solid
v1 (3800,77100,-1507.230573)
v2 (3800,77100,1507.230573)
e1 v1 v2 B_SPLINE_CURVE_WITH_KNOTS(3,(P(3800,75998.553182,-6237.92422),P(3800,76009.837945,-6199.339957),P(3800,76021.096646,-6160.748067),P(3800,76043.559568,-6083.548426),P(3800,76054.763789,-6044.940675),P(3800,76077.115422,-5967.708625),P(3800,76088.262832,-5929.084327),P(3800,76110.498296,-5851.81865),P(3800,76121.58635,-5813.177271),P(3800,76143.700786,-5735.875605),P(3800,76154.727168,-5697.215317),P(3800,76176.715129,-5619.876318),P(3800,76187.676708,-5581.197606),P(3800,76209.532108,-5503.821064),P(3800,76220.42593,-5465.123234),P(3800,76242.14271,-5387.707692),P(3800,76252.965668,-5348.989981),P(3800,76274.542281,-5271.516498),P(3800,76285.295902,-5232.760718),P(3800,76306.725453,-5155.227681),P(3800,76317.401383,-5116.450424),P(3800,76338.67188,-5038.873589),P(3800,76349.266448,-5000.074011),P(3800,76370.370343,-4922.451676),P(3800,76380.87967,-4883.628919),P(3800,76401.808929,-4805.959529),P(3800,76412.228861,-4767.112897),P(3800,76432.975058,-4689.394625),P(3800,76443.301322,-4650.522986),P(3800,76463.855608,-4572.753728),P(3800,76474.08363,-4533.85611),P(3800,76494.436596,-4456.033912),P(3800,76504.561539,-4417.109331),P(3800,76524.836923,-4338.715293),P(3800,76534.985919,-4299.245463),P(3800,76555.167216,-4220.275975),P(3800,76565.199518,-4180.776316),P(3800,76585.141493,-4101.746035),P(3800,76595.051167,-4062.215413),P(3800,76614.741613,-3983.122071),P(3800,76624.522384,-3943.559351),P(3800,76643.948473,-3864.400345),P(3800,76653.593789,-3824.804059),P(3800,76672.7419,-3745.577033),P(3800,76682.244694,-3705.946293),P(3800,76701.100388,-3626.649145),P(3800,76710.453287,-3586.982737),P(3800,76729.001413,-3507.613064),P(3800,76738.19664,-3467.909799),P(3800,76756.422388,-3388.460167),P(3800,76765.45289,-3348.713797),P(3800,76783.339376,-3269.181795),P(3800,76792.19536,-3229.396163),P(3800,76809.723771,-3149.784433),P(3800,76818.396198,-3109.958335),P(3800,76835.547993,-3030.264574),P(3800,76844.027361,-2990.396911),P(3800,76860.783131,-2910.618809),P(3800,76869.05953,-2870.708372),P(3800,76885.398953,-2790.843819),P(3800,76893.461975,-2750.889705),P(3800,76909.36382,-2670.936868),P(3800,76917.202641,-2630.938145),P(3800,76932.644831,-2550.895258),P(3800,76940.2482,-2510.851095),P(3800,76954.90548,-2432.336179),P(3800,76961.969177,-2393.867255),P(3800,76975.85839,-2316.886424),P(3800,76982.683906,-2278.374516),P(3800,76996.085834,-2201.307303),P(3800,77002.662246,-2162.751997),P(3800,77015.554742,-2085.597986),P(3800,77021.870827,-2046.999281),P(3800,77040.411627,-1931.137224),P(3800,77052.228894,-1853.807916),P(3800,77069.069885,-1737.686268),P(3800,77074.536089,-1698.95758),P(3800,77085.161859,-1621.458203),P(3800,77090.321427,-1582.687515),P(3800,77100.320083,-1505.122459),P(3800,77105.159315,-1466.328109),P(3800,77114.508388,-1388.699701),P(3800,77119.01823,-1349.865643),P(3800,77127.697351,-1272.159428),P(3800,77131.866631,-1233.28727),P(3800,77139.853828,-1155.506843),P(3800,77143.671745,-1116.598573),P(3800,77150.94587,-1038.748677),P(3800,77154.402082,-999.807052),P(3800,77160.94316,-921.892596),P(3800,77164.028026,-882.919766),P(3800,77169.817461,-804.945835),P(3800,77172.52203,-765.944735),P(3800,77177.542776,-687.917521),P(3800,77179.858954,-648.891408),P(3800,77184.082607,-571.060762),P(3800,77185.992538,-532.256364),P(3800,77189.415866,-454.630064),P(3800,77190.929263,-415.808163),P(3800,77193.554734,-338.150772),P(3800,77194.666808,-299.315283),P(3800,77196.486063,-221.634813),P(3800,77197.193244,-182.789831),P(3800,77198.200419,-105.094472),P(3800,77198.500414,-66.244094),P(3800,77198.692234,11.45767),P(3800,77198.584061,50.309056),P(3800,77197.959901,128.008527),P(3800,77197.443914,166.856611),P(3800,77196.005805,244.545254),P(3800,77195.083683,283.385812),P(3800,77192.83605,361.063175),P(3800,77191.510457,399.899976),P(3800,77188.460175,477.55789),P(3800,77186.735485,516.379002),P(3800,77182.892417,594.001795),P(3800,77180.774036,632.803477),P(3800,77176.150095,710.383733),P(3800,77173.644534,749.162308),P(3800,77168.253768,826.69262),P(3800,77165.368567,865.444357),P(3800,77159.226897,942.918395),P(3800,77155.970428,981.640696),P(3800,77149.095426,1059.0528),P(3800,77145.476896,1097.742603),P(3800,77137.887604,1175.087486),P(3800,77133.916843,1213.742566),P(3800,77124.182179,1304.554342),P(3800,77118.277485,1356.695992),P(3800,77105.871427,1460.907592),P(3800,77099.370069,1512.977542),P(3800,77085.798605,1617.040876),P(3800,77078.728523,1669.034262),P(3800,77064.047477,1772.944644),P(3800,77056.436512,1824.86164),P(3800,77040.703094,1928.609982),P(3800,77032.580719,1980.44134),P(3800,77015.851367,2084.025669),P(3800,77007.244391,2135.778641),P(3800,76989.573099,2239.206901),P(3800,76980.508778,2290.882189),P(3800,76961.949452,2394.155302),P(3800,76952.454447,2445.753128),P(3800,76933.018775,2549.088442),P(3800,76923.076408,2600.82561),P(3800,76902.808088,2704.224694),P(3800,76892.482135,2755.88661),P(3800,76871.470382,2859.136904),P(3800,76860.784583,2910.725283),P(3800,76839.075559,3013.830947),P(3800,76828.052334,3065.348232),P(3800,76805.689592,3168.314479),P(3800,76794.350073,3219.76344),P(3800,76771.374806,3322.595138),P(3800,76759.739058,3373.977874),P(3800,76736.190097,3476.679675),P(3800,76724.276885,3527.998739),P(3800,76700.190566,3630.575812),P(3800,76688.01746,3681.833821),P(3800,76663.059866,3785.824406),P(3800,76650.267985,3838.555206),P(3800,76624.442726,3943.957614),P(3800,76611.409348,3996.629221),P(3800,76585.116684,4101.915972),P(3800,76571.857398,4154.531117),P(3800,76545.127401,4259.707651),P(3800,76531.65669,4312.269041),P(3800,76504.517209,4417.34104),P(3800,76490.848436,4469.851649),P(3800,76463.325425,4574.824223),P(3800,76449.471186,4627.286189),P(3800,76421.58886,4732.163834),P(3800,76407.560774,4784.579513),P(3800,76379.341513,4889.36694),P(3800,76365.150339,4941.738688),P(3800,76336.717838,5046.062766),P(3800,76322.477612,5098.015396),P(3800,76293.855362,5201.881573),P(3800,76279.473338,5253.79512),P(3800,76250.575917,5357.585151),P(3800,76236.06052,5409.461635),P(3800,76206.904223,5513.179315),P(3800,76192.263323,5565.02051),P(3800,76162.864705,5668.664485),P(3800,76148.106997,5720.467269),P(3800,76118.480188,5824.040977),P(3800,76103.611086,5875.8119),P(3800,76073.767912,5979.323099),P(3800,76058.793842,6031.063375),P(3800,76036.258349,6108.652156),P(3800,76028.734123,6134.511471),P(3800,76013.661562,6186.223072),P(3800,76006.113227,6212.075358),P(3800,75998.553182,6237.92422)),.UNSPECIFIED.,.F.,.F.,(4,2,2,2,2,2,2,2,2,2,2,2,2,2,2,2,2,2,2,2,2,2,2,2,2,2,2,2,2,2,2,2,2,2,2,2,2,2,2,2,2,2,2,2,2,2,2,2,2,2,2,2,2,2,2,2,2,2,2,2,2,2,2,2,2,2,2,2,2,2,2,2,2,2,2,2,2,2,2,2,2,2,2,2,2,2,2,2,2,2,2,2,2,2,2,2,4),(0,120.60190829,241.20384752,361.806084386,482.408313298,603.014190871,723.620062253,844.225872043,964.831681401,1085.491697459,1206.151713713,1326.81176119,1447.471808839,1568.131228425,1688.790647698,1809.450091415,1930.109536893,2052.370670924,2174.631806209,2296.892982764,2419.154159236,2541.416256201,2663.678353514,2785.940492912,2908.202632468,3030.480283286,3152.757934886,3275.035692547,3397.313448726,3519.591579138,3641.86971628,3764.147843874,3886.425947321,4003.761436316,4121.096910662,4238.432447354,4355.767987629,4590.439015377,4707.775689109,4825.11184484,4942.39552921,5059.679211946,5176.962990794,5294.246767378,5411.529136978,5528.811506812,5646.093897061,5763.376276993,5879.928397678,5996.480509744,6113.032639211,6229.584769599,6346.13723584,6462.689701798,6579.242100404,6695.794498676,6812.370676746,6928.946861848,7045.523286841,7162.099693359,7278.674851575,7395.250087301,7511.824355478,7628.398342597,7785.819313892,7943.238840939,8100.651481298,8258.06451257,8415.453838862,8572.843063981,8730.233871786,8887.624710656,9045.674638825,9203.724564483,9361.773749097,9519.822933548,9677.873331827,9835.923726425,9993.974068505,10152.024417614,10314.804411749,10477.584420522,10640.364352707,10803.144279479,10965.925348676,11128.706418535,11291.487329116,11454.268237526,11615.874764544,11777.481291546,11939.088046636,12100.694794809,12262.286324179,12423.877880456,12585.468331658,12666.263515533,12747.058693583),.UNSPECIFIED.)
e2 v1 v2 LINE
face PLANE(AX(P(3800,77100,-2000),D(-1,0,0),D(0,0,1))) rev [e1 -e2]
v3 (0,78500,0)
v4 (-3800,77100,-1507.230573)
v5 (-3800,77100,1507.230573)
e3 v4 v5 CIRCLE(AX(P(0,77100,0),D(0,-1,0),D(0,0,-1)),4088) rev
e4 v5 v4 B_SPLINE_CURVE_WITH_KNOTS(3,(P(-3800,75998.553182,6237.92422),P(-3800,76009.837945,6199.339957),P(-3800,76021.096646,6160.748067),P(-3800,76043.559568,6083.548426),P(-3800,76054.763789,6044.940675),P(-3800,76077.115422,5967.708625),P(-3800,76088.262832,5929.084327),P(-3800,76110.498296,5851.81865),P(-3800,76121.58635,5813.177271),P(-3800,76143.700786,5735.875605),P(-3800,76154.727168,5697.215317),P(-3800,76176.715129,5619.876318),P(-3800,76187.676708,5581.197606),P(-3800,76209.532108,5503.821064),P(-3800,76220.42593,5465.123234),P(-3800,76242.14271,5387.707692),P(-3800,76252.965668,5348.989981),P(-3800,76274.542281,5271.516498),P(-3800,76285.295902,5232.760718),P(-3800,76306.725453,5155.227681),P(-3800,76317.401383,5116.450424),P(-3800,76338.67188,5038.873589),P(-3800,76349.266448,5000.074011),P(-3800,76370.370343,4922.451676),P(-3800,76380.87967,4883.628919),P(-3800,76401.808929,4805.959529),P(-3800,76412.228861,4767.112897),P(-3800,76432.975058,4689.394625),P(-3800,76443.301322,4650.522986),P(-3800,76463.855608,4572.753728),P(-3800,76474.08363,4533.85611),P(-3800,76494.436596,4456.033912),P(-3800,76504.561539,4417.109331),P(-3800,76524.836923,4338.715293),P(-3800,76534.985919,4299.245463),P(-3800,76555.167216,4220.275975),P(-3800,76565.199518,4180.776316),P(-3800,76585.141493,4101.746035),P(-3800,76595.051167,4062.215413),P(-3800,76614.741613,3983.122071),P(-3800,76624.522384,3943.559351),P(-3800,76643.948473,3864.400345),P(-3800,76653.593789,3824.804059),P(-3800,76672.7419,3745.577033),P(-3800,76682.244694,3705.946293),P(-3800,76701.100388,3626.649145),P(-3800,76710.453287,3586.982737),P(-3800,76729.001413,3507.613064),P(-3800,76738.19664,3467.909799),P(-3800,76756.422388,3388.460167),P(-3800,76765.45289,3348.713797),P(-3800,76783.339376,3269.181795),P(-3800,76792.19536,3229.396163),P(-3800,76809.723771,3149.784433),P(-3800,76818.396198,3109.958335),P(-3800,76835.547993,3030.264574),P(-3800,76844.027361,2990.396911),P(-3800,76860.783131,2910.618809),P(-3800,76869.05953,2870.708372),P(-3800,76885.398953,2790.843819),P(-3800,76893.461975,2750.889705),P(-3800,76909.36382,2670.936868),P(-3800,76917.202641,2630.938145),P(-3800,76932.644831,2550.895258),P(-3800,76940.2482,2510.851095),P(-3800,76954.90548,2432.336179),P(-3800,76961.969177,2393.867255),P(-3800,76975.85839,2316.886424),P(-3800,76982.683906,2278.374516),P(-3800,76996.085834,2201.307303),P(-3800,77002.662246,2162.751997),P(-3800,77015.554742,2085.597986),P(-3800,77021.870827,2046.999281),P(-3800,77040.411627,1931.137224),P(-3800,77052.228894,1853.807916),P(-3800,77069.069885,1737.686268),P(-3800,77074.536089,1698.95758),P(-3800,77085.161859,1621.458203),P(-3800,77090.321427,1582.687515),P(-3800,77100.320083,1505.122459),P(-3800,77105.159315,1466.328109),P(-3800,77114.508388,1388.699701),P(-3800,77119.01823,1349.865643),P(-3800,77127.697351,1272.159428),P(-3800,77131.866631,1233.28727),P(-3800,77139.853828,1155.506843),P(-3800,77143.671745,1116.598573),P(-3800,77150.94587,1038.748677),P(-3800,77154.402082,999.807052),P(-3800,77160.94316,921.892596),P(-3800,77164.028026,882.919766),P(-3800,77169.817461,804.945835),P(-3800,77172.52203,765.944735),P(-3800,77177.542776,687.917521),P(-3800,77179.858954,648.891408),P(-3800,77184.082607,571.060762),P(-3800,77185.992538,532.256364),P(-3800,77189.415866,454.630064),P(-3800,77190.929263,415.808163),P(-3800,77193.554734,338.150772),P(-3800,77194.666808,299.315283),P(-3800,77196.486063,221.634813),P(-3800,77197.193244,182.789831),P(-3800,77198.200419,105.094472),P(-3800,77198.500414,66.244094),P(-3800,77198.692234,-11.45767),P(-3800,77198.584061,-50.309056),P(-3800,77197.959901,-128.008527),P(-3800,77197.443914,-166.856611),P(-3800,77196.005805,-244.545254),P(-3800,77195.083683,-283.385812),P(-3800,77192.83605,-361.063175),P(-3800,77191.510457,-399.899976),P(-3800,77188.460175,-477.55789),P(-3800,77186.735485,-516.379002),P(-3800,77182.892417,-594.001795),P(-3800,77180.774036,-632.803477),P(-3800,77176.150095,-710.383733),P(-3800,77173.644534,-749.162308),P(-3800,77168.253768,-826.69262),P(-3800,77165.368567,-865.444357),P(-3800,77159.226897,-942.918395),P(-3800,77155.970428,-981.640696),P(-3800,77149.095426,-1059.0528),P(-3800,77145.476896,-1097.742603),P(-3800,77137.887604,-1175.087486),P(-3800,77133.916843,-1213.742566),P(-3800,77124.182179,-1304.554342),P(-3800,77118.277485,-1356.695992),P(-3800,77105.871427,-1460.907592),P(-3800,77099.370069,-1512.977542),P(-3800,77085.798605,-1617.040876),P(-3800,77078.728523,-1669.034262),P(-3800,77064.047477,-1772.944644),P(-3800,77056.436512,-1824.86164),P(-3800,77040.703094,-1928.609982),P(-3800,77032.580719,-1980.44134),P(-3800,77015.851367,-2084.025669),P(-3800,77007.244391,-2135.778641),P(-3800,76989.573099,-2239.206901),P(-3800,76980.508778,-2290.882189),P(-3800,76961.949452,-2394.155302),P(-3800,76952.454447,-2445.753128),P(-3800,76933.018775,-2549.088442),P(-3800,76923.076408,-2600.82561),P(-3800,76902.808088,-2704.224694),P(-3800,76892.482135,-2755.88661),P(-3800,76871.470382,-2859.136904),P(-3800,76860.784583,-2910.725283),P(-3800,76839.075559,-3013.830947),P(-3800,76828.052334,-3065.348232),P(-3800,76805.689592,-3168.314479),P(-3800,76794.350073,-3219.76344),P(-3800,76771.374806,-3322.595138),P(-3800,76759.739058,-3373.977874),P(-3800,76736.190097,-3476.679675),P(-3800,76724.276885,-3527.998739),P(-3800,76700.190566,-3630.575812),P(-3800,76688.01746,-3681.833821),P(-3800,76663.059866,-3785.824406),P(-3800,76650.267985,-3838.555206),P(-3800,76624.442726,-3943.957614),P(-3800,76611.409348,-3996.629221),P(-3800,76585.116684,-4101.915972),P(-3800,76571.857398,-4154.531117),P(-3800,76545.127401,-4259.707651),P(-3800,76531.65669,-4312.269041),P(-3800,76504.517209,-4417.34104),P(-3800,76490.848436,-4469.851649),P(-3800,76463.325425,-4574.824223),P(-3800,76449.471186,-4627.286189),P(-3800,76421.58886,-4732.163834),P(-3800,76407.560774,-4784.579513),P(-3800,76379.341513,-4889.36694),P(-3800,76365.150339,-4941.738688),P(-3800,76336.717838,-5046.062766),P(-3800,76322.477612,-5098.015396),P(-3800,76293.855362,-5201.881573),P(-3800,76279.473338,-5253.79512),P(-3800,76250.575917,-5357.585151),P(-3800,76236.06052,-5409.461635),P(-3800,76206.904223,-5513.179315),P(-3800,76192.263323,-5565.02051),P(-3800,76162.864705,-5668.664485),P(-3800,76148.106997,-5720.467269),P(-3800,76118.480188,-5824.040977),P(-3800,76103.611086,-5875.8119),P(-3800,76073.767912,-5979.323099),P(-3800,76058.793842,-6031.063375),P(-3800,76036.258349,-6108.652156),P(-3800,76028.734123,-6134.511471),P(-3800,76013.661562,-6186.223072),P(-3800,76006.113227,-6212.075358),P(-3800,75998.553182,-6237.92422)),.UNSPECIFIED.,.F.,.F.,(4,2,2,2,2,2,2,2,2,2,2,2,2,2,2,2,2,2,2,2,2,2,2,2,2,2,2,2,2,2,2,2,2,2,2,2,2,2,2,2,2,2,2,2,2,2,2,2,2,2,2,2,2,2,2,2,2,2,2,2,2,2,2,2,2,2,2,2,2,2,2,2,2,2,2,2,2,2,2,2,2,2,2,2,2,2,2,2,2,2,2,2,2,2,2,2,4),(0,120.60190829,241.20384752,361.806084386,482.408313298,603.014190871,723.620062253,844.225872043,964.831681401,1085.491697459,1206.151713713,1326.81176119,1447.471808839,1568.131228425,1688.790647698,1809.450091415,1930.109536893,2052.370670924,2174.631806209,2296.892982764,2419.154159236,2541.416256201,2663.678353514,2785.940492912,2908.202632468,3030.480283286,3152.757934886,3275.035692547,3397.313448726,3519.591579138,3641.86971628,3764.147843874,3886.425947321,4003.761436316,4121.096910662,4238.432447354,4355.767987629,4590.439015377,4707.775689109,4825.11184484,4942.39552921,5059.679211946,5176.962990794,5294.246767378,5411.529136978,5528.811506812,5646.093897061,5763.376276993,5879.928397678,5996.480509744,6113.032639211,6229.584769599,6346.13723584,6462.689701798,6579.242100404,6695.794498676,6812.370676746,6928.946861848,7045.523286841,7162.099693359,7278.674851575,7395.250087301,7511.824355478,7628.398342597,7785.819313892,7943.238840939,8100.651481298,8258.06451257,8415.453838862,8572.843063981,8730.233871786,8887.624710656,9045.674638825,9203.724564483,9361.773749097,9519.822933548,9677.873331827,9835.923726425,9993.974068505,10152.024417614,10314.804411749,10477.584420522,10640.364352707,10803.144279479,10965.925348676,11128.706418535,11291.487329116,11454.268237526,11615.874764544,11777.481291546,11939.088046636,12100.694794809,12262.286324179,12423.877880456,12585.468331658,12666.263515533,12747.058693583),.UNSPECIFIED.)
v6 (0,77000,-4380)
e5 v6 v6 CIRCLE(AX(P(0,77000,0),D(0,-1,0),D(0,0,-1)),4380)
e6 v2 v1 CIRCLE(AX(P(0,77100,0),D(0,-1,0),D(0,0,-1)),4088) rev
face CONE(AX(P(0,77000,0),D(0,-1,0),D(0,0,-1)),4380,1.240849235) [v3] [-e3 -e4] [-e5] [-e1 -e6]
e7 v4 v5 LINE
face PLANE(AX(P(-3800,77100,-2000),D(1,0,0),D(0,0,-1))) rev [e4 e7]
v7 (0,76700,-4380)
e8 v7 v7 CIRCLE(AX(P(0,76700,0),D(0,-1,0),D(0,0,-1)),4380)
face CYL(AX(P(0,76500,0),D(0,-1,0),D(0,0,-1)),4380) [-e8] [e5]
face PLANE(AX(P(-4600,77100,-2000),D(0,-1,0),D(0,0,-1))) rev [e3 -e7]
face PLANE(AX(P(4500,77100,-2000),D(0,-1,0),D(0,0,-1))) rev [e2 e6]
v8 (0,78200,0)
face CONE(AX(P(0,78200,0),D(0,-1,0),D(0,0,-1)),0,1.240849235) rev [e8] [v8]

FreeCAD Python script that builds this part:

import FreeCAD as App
import Part
import Sketcher
from FreeCAD import Vector
Q = App.Units.Quantity

doc = App.newDocument("Part")
params = doc.addObject("Spreadsheet::Sheet", "Params")
for row, (alias, value) in enumerate([
    ("sketch1_height", "300 mm"),
    ("revolution_angle", "360 deg"),
    ("sketch2_width", "700 mm"),
    ("sketch2_width2", "800 mm"),
    ("sketch2_height", "2300 mm"),
    ("pocket1_length", "4000 mm"),
], start=1):
    params.set(f"A{row}", alias)
    params.set(f"B{row}", "=" + value)
    params.setAlias(f"B{row}", alias)

body = doc.addObject("PartDesign::Body", "Body")

sketch1 = doc.addObject("Sketcher::SketchObject", "Sketch")
body.addObject(sketch1)
sketch1.AttachmentSupport = (doc.XY_Plane, [""])
sketch1.MapMode = "FlatFace"
sketch1.addGeometry(Part.LineSegment(Vector(4380, 77000, 0), Vector(0, 78500, 0)), False)
sketch1.addGeometry(Part.LineSegment(Vector(0, 78500, 0), Vector(0, 78200, 0)), False)
sketch1.addGeometry(Part.LineSegment(Vector(0, 78200, 0), Vector(4380, 76700, 0)), False)
sketch1.addGeometry(Part.LineSegment(Vector(4380, 76700, 0), Vector(4380, 77000, 0)), False)
sketch1.addConstraint(Sketcher.Constraint("Coincident", 0, 2, 1, 1))
sketch1.addConstraint(Sketcher.Constraint("Coincident", 1, 2, 2, 1))
sketch1.addConstraint(Sketcher.Constraint("Coincident", 2, 2, 3, 1))
sketch1.addConstraint(Sketcher.Constraint("Coincident", 3, 2, 0, 1))
sketch1.addConstraint(Sketcher.Constraint("Vertical", 1))
sketch1.addConstraint(Sketcher.Constraint("Vertical", 3))
sketch1.addConstraint(Sketcher.Constraint("PointOnObject", 0, 2, -2))
sketch1.addConstraint(Sketcher.Constraint("Parallel", 0, 2))
sketch1.addConstraint(Sketcher.Constraint("DistanceY", 1, 2, 1, 1, Q("300 mm")))
sketch1.addConstraint(Sketcher.Constraint("DistanceY", -1, 1, 0, 2, Q("78500 mm")))
sketch1.addConstraint(Sketcher.Constraint("DistanceX", -1, 1, 2, 2, Q("4380 mm")))
sketch1.addConstraint(Sketcher.Constraint("DistanceY", -1, 1, 2, 2, Q("76700 mm")))
sketch1.setExpression("Constraints[8]", "Params.sketch1_height")
revolution = doc.addObject("PartDesign::Revolution", "Revolution")
body.addObject(revolution)
revolution.Profile = sketch1
revolution.ReferenceAxis = (sketch1, ["V_Axis"])
revolution.setExpression("Angle", "Params.revolution_angle")

sketch2 = doc.addObject("Sketcher::SketchObject", "Sketch001")
body.addObject(sketch2)
sketch2.AttachmentSupport = (doc.XY_Plane, [""])
sketch2.MapMode = "FlatFace"
sketch2.addGeometry(Part.LineSegment(Vector(3800, 79400, 0), Vector(3800, 77100, 0)), False)
sketch2.addGeometry(Part.LineSegment(Vector(3800, 77100, 0), Vector(4500, 77100, 0)), False)
sketch2.addGeometry(Part.LineSegment(Vector(4500, 77100, 0), Vector(4500, 79400, 0)), False)
sketch2.addGeometry(Part.LineSegment(Vector(4500, 79400, 0), Vector(3800, 79400, 0)), False)
sketch2.addGeometry(Part.LineSegment(Vector(-4600, 79400, 0), Vector(-4600, 77100, 0)), False)
sketch2.addGeometry(Part.LineSegment(Vector(-4600, 77100, 0), Vector(-3800, 77100, 0)), False)
sketch2.addGeometry(Part.LineSegment(Vector(-3800, 77100, 0), Vector(-3800, 79400, 0)), False)
sketch2.addGeometry(Part.LineSegment(Vector(-3800, 79400, 0), Vector(-4600, 79400, 0)), False)
sketch2.addConstraint(Sketcher.Constraint("Coincident", 0, 2, 1, 1))
sketch2.addConstraint(Sketcher.Constraint("Coincident", 1, 2, 2, 1))
sketch2.addConstraint(Sketcher.Constraint("Coincident", 2, 2, 3, 1))
sketch2.addConstraint(Sketcher.Constraint("Coincident", 3, 2, 0, 1))
sketch2.addConstraint(Sketcher.Constraint("Coincident", 4, 2, 5, 1))
sketch2.addConstraint(Sketcher.Constraint("Coincident", 5, 2, 6, 1))
sketch2.addConstraint(Sketcher.Constraint("Coincident", 6, 2, 7, 1))
sketch2.addConstraint(Sketcher.Constraint("Coincident", 7, 2, 4, 1))
sketch2.addConstraint(Sketcher.Constraint("Vertical", 0))
sketch2.addConstraint(Sketcher.Constraint("Horizontal", 1))
sketch2.addConstraint(Sketcher.Constraint("Vertical", 2))
sketch2.addConstraint(Sketcher.Constraint("Horizontal", 3))
sketch2.addConstraint(Sketcher.Constraint("Vertical", 4))
sketch2.addConstraint(Sketcher.Constraint("Horizontal", 5))
sketch2.addConstraint(Sketcher.Constraint("Vertical", 6))
sketch2.addConstraint(Sketcher.Constraint("Horizontal", 7))
sketch2.addConstraint(Sketcher.Constraint("Symmetric", 0, 2, 5, 2, -2))
sketch2.addConstraint(Sketcher.Constraint("Horizontal", 3, 2, 6, 2))
sketch2.addConstraint(Sketcher.Constraint("DistanceX", 1, 1, 1, 2, Q("700 mm")))
sketch2.addConstraint(Sketcher.Constraint("DistanceX", 5, 1, 5, 2, Q("800 mm")))
sketch2.addConstraint(Sketcher.Constraint("DistanceY", 0, 2, 0, 1, Q("2300 mm")))
sketch2.addConstraint(Sketcher.Constraint("DistanceX", -1, 1, 0, 2, Q("3800 mm")))
sketch2.addConstraint(Sketcher.Constraint("DistanceY", -1, 1, 0, 2, Q("77100 mm")))
sketch2.setExpression("Constraints[18]", "Params.sketch2_width")
sketch2.setExpression("Constraints[19]", "Params.sketch2_width2")
sketch2.setExpression("Constraints[20]", "Params.sketch2_height")
pocket1 = doc.addObject("PartDesign::Pocket", "Pocket")
body.addObject(pocket1)
pocket1.Profile = sketch2
pocket1.setExpression("Length", "Params.pocket1_length")
pocket1.Midplane = True

doc.recompute()
